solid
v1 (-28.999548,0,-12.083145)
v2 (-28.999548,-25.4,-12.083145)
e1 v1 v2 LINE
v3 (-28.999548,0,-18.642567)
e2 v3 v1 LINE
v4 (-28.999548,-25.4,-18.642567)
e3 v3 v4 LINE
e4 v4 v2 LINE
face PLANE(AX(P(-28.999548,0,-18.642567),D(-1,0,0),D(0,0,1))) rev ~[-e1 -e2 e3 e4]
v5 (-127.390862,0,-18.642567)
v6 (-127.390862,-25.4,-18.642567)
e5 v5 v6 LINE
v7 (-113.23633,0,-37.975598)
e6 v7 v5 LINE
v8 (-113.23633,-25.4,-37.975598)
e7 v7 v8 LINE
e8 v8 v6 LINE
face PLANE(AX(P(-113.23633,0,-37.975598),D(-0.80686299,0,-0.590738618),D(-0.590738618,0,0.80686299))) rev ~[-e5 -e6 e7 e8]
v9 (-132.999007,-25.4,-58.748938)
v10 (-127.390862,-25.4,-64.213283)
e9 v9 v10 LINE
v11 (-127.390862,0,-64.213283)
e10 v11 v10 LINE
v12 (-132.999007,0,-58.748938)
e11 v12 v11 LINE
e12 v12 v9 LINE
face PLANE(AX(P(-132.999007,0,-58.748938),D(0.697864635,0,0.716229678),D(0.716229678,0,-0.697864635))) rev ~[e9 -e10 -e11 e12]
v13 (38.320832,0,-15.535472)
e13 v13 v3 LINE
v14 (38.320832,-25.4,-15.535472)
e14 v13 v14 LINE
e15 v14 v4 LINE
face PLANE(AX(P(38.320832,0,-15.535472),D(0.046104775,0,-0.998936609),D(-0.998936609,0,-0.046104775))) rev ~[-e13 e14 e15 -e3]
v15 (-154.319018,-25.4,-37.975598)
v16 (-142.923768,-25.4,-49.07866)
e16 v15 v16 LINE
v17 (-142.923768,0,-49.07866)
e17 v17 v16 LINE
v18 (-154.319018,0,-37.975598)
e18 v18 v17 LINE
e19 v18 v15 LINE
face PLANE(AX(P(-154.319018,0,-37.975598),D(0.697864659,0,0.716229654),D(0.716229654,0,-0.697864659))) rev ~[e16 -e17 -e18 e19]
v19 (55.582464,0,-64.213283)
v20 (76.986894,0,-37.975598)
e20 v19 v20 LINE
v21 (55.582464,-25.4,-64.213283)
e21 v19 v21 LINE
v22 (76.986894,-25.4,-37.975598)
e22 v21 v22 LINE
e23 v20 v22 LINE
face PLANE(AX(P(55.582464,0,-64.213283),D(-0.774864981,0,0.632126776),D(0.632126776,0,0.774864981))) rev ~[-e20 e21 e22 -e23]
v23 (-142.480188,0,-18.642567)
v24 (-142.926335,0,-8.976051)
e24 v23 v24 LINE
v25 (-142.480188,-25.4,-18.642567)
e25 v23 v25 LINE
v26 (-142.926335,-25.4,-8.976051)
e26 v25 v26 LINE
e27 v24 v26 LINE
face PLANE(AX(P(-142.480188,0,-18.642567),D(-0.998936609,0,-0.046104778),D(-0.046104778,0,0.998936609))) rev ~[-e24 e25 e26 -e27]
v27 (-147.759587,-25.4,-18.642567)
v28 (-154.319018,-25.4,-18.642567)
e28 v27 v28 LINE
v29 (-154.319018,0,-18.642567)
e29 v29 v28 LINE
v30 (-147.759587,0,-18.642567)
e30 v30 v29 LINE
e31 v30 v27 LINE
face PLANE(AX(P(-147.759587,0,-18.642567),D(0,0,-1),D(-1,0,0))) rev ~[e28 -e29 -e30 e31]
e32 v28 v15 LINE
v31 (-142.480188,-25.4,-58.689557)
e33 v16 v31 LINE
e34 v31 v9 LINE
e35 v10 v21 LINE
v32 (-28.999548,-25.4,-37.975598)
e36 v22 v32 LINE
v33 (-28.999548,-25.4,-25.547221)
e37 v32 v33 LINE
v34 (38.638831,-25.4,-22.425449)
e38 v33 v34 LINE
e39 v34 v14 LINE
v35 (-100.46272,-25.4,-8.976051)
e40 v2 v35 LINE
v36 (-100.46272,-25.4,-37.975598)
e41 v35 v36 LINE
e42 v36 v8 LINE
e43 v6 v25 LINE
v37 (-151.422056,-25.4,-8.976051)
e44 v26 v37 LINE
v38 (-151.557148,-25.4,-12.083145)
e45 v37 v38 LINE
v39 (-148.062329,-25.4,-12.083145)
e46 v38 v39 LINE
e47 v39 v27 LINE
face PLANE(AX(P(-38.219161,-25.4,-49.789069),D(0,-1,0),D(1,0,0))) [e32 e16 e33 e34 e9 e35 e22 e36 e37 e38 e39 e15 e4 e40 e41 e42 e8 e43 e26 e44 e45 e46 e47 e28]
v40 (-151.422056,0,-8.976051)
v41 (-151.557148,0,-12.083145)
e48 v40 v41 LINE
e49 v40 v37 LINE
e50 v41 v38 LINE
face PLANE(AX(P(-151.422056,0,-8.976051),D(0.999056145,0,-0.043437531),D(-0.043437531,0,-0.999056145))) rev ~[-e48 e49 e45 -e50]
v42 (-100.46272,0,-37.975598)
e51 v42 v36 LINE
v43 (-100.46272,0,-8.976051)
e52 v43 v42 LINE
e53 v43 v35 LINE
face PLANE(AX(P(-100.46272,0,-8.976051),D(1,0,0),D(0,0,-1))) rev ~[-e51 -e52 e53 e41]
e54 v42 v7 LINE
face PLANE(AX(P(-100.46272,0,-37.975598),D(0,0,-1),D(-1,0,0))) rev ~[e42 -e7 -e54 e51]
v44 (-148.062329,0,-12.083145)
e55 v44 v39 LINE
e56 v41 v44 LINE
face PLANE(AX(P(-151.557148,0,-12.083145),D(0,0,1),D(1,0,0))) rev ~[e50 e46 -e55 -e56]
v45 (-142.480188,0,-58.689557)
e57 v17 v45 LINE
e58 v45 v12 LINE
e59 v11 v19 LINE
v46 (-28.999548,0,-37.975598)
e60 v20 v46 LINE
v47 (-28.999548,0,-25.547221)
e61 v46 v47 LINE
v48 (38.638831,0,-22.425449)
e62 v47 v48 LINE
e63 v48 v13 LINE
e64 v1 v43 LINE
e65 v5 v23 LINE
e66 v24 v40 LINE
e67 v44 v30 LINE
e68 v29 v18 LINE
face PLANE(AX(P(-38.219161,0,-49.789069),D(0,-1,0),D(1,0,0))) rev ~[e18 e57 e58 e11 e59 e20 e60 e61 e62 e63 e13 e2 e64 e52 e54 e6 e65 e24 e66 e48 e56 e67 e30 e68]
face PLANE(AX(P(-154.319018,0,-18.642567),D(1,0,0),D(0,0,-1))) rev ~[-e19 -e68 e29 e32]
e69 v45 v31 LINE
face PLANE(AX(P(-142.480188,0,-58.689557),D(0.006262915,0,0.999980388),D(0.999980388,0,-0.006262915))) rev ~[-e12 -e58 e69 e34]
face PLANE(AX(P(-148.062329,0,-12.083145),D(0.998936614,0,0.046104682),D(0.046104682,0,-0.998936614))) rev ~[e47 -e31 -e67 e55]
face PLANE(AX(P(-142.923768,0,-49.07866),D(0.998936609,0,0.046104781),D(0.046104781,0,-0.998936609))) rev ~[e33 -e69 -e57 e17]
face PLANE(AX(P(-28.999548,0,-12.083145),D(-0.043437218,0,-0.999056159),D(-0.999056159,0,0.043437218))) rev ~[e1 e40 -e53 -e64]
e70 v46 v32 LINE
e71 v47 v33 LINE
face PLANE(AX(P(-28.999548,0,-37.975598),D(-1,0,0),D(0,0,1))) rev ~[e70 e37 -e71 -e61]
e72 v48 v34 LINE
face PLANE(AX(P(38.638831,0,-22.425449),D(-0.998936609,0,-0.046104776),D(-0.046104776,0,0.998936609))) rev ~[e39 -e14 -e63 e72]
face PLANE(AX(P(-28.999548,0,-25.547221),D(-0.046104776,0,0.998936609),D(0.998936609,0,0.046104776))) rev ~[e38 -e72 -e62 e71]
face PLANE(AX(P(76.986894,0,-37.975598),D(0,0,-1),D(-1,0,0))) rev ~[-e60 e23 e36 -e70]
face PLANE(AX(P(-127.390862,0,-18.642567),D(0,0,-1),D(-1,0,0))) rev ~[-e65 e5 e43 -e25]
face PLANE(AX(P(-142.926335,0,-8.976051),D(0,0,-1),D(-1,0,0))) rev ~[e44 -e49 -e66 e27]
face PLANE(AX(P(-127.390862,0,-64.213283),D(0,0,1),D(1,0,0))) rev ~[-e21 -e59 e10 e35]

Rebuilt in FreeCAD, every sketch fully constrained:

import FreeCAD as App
import Part
import Sketcher
from FreeCAD import Vector
Q = App.Units.Quantity


def add_polygon(sketch, points):
    """Adds a closed chain of lines whose ends are joined by coincident constraints."""
    first, n = sketch.GeometryCount, len(points)
    for a, b in zip(points, points[1:] + points[:1]):
        sketch.addGeometry(Part.LineSegment(App.Vector(*a, 0), App.Vector(*b, 0)), False)
    for i in range(n):
        sketch.addConstraint(Sketcher.Constraint("Coincident", first + i, 2, first + (i + 1) % n, 1))

doc = App.newDocument("Part")
body = doc.addObject("PartDesign::Body", "Body")

# Sketch on XZ plane
sketch1 = body.newObject("Sketcher::SketchObject", "Sketch")
sketch1.AttachmentSupport = (doc.getObject("XZ_Plane"), [""])
sketch1.MapMode = "FlatFace"
add_polygon(sketch1, [(-132.999007, -58.748938), (-127.390862, -64.213283), (55.582464, -64.213283), (76.986894, -37.975598), (-28.999548, -37.975598), (-28.999548, -25.547221), (38.638831, -22.425449), (38.320832, -15.535472), (-28.999548, -18.642567), (-28.999548, -12.083145), (-100.46272, -8.976051), (-100.46272, -37.975598), (-113.23633, -37.975598), (-127.390862, -18.642567), (-142.480188, -18.642567), (-142.926335, -8.976051), (-151.422056, -8.976051), (-151.557148, -12.083145), (-148.062329, -12.083145), (-147.759587, -18.642567), (-154.319018, -18.642567), (-154.319018, -37.975598), (-142.923768, -49.07866), (-142.480188, -58.689557)])  # lines 0-23
sketch1.addConstraint([
    Sketcher.Constraint("Horizontal", 1),
    Sketcher.Constraint("Horizontal", 3),
    Sketcher.Constraint("Vertical", 4),
    Sketcher.Constraint("Vertical", 8),
    Sketcher.Constraint("Vertical", 10),
    Sketcher.Constraint("Horizontal", 11),
    Sketcher.Constraint("Horizontal", 13),
    Sketcher.Constraint("Horizontal", 15),
    Sketcher.Constraint("Horizontal", 17),
    Sketcher.Constraint("Horizontal", 19),
    Sketcher.Constraint("Vertical", 20),
    Sketcher.Constraint("DistanceX", 11, 2, 11, 1, Q("12.77361 mm")),
    Sketcher.Constraint("DistanceX", 15, 2, 15, 1, Q("8.495721 mm")),
    Sketcher.Constraint("DistanceX", 17, 1, 17, 2, Q("3.494819 mm")),
    Sketcher.Constraint("DistanceX", 19, 2, 19, 1, Q("6.559431 mm")),
    Sketcher.Constraint("DistanceY", 8, 1, 8, 2, Q("6.559422 mm")),
    Sketcher.Constraint("DistanceY", 20, 2, 20, 1, Q("19.333031 mm")),
    Sketcher.Constraint("DistanceX", 6, 2, 5, 2, Q("0.317999 mm")),
    Sketcher.Constraint("DistanceX", 18, 2, 13, 2, Q("5.279399 mm")),
    Sketcher.Constraint("Distance", 5, Q("67.710382 mm")),
    Sketcher.Constraint("Distance", 6, Q("6.897312 mm")),
    Sketcher.Constraint("Distance", 16, Q("3.110029 mm")),
    Sketcher.Constraint("Distance", 21, Q("15.910051 mm")),
    Sketcher.Constraint("Distance", 22, Q("9.621128 mm")),
    Sketcher.Constraint("DistanceX", 1, 1, 1, 2, Q("182.973326 mm")),
    Sketcher.Constraint("DistanceX", 3, 2, 3, 1, Q("105.986442 mm")),
    Sketcher.Constraint("DistanceX", 13, 2, 13, 1, Q("15.089326 mm")),
    Sketcher.Constraint("DistanceY", 4, 1, 4, 2, Q("12.428377 mm")),
    Sketcher.Constraint("DistanceY", 10, 2, 10, 1, Q("28.999547 mm")),
    Sketcher.Constraint("DistanceX", 0, 2, -1, 1, Q("127.390862 mm")),
    Sketcher.Constraint("DistanceX", 3, 2, -1, 1, Q("28.999548 mm")),
    Sketcher.Constraint("DistanceY", 4, 2, -1, 1, Q("25.547221 mm")),
    Sketcher.Constraint("DistanceX", -1, 1, 5, 2, Q("38.638831 mm")),
    Sketcher.Constraint("DistanceX", 7, 2, -1, 1, Q("28.999548 mm")),
    Sketcher.Constraint("DistanceX", 9, 2, -1, 1, Q("100.46272 mm")),
    Sketcher.Constraint("DistanceY", 9, 2, -1, 1, Q("8.976051 mm")),
    Sketcher.Constraint("DistanceX", 12, 2, -1, 1, Q("127.390862 mm")),
    Sketcher.Constraint("DistanceY", 14, 2, -1, 1, Q("8.976051 mm")),
    Sketcher.Constraint("DistanceX", 16, 2, -1, 1, Q("151.557148 mm")),
    Sketcher.Constraint("DistanceX", 21, 2, -1, 1, Q("142.923768 mm")),
    Sketcher.Constraint("DistanceY", 21, 2, -1, 1, Q("49.07866 mm")),
    Sketcher.Constraint("DistanceX", 22, 2, -1, 1, Q("142.480188 mm")),
    Sketcher.Constraint("DistanceY", 23, 2, -1, 1, Q("58.748938 mm")),
    Sketcher.Constraint("DistanceY", 1, 2, 6, 2, Q("48.677811 mm")),
    Sketcher.Constraint("DistanceY", 3, 2, 7, 2, Q("19.333031 mm")),
    Sketcher.Constraint("DistanceY", 11, 2, 12, 2, Q("19.333031 mm")),
    Sketcher.Constraint("DistanceY", 13, 2, 16, 2, Q("6.559422 mm")),
    Sketcher.Constraint("DistanceX", 22, 2, 23, 2, Q("9.481181 mm")),
])
pad1 = body.newObject("PartDesign::Pad", "Pad")
pad1.Profile = sketch1
pad1.Length = Q("1 in")

doc.recompute()
